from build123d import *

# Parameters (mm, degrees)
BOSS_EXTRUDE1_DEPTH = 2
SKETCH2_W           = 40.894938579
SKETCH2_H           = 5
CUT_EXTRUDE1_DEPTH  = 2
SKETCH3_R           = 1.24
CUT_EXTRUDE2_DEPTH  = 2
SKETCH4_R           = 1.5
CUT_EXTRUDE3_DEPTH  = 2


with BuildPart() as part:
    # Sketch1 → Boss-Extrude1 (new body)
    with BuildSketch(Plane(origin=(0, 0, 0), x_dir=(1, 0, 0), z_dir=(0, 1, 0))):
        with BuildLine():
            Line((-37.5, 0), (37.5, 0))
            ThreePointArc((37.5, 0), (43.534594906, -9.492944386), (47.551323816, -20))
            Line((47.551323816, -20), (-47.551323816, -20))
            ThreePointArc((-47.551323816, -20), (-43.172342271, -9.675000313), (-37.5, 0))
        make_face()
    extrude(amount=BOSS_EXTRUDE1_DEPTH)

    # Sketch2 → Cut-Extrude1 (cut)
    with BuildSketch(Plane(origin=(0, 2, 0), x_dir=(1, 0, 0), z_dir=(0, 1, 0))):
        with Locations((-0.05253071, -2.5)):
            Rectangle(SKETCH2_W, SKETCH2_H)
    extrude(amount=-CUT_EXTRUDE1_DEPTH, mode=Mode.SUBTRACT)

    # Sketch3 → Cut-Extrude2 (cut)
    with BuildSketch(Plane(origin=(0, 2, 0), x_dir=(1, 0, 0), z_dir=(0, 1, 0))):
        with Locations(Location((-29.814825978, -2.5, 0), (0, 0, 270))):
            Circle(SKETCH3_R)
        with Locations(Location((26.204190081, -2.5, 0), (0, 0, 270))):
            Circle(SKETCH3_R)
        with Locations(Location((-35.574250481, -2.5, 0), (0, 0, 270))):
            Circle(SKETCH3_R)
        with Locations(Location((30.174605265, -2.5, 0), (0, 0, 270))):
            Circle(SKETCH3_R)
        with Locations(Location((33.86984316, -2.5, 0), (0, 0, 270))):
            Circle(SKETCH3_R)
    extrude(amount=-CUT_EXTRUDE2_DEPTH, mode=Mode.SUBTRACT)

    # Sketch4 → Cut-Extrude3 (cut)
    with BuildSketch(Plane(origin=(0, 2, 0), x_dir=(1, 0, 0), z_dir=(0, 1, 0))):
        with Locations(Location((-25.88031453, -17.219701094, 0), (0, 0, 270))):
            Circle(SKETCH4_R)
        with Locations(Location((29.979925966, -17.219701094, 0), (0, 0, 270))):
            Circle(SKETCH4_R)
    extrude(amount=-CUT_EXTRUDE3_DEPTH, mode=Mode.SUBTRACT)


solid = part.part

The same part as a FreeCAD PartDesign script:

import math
import FreeCAD as App
import Part
import Sketcher
from FreeCAD import Vector


def add_polygon(sketch, points):
    """Adds a closed chain of lines whose ends are joined by coincident constraints."""
    first, n = sketch.GeometryCount, len(points)
    for a, b in zip(points, points[1:] + points[:1]):
        sketch.addGeometry(Part.LineSegment(App.Vector(*a, 0), App.Vector(*b, 0)), False)
    for i in range(n):
        sketch.addConstraint(Sketcher.Constraint("Coincident", first + i, 2, first + (i + 1) % n, 1))

doc = App.newDocument("Part")
body = doc.addObject("PartDesign::Body", "Body")

# Sketch on XZ plane
sketch1 = body.newObject("Sketcher::SketchObject", "Sketch")
sketch1.AttachmentSupport = (doc.getObject("XZ_Plane"), [""])
sketch1.MapMode = "FlatFace"
sketch1.addGeometry([
    Part.LineSegment(Vector(38, 0, 0), Vector(-38, 0, 0)),
    Part.ArcOfCircle(Part.Circle(Vector(34, 49, 0), Vector(0, 0, 1), 87), math.radians(-160.72), math.radians(-145.92)),
    Part.LineSegment(Vector(-48, 20, 0), Vector(48, 20, 0)),
    Part.ArcOfCircle(Part.Circle(Vector(-7, 35, 0), Vector(0, 0, 1), 56), math.radians(-38), math.radians(-15)),
], False)
sketch1.addConstraint([
    Sketcher.Constraint("Coincident", 0, 2, 1, 2),
    Sketcher.Constraint("Coincident", 1, 1, 2, 1),
    Sketcher.Constraint("Coincident", 2, 2, 3, 2),
    Sketcher.Constraint("Coincident", 3, 1, 0, 1),
    Sketcher.Constraint("Horizontal", 0),
    Sketcher.Constraint("Horizontal", 2),
    Sketcher.Constraint("Symmetric", 0, 2, 3, 1, -1, 1),
    Sketcher.Constraint("DistanceX", 0, 2, 0, 1, 75.0),
    Sketcher.Constraint("DistanceY", -1, 1, 1, 1, 20.0),
    Sketcher.Constraint("Radius", 1, 86.894888),
    Sketcher.Constraint("Radius", 3, 56.028332),
    Sketcher.Constraint("DistanceY", -1, 1, 3, 3, 34.652298),
    Sketcher.Constraint("DistanceX", 2, 1, 2, 2, 95.102648),
])
pad1 = body.newObject("PartDesign::Pad", "Pad")
pad1.Profile = sketch1
pad1.Length = 2
pad1.Reversed = True

# Sketch on XZ plane
sketch2 = body.newObject("Sketcher::SketchObject", "Sketch001")
sketch2.AttachmentSupport = (doc.getObject("XZ_Plane"), [""])
sketch2.MapMode = "FlatFace"
sketch2.AttachmentOffset = App.Placement(Vector(0, 0, -2), App.Rotation())
add_polygon(sketch2, [(-20, 0), (-20, 5), (20, 5), (20, 0)])  # lines 0-3
sketch2.addConstraint([
    Sketcher.Constraint("Vertical", 0),
    Sketcher.Constraint("Horizontal", 1),
    Sketcher.Constraint("Vertical", 2),
    Sketcher.Constraint("Horizontal", 3),
    Sketcher.Constraint("PointOnObject", 2, 2, -1),
    Sketcher.Constraint("DistanceY", 0, 1, 0, 2, 5.0),
    Sketcher.Constraint("DistanceX", 0, 2, -1, 1, 20.5),
    Sketcher.Constraint("DistanceX", 1, 1, 1, 2, 40.894939),
])
pocket1 = body.newObject("PartDesign::Pocket", "Pocket")
pocket1.Profile = sketch2
pocket1.Length = 2
pocket1.Reversed = True

# Sketch on XZ plane
sketch3 = body.newObject("Sketcher::SketchObject", "Sketch002")
sketch3.AttachmentSupport = (doc.getObject("XZ_Plane"), [""])
sketch3.MapMode = "FlatFace"
sketch3.AttachmentOffset = App.Placement(Vector(0, 0, -2), App.Rotation())
sketch3.addGeometry([
    Part.Circle(Vector(-29.8, 2.5, 0), Vector(0, 0, 1), 1.2),  # 0
    Part.Circle(Vector(26.2, 2.5, 0), Vector(0, 0, 1), 1.2),  # 1
    Part.Circle(Vector(-35.6, 2.5, 0), Vector(0, 0, 1), 1.2),  # 2
    Part.Circle(Vector(30.2, 2.5, 0), Vector(0, 0, 1), 1.2),  # 3
    Part.Circle(Vector(33.9, 2.5, 0), Vector(0, 0, 1), 1.2),  # 4
], False)
sketch3.addConstraint([
    Sketcher.Constraint("Equal", 0, 1),
    Sketcher.Constraint("Equal", 1, 2),
    Sketcher.Constraint("Equal", 2, 3),
    Sketcher.Constraint("Equal", 3, 4),
    Sketcher.Constraint("Horizontal", 0, 3, 1, 3),
    Sketcher.Constraint("Horizontal", 1, 3, 2, 3),
    Sketcher.Constraint("Horizontal", 2, 3, 3, 3),
    Sketcher.Constraint("Horizontal", 3, 3, 4, 3),
    Sketcher.Constraint("Diameter", 0, 2.48),
    Sketcher.Constraint("DistanceY", -1, 1, 0, 3, 2.5),
    Sketcher.Constraint("DistanceX", -1, 1, 1, 3, 26.20419),
    Sketcher.Constraint("DistanceX", 2, 3, -1, 1, 35.57425),
    Sketcher.Constraint("DistanceX", 0, 3, 3, 3, 59.989431),
    Sketcher.Constraint("DistanceX", 0, 3, 4, 3, 63.684669),
    Sketcher.Constraint("DistanceX", 0, 3, -1, 1, 29.814826),
])
pocket2 = body.newObject("PartDesign::Pocket", "Pocket001")
pocket2.Profile = sketch3
pocket2.Length = 2
pocket2.Reversed = True

# Sketch on XZ plane
sketch4 = body.newObject("Sketcher::SketchObject", "Sketch003")
sketch4.AttachmentSupport = (doc.getObject("XZ_Plane"), [""])
sketch4.MapMode = "FlatFace"
sketch4.AttachmentOffset = App.Placement(Vector(0, 0, -2), App.Rotation())
sketch4.addGeometry([
    Part.Circle(Vector(-25.9, 17.2, 0), Vector(0, 0, 1), 1.5),
    Part.Circle(Vector(30, 17.2, 0), Vector(0, 0, 1), 1.5),
], False)
sketch4.addConstraint([
    Sketcher.Constraint("Equal", 0, 1),
    Sketcher.Constraint("Horizontal", 0, 3, 1, 3),
    Sketcher.Constraint("Diameter", 0, 3.0),
    Sketcher.Constraint("DistanceY", -1, 1, 0, 3, 17.219701),
    Sketcher.Constraint("DistanceX", 0, 3, 1, 3, 55.86024),
    Sketcher.Constraint("DistanceX", 0, 3, -1, 1, 25.880315),
])
pocket3 = body.newObject("PartDesign::Pocket", "Pocket002")
pocket3.Profile = sketch4
pocket3.Length = 2
pocket3.Reversed = True

doc.recompute()
